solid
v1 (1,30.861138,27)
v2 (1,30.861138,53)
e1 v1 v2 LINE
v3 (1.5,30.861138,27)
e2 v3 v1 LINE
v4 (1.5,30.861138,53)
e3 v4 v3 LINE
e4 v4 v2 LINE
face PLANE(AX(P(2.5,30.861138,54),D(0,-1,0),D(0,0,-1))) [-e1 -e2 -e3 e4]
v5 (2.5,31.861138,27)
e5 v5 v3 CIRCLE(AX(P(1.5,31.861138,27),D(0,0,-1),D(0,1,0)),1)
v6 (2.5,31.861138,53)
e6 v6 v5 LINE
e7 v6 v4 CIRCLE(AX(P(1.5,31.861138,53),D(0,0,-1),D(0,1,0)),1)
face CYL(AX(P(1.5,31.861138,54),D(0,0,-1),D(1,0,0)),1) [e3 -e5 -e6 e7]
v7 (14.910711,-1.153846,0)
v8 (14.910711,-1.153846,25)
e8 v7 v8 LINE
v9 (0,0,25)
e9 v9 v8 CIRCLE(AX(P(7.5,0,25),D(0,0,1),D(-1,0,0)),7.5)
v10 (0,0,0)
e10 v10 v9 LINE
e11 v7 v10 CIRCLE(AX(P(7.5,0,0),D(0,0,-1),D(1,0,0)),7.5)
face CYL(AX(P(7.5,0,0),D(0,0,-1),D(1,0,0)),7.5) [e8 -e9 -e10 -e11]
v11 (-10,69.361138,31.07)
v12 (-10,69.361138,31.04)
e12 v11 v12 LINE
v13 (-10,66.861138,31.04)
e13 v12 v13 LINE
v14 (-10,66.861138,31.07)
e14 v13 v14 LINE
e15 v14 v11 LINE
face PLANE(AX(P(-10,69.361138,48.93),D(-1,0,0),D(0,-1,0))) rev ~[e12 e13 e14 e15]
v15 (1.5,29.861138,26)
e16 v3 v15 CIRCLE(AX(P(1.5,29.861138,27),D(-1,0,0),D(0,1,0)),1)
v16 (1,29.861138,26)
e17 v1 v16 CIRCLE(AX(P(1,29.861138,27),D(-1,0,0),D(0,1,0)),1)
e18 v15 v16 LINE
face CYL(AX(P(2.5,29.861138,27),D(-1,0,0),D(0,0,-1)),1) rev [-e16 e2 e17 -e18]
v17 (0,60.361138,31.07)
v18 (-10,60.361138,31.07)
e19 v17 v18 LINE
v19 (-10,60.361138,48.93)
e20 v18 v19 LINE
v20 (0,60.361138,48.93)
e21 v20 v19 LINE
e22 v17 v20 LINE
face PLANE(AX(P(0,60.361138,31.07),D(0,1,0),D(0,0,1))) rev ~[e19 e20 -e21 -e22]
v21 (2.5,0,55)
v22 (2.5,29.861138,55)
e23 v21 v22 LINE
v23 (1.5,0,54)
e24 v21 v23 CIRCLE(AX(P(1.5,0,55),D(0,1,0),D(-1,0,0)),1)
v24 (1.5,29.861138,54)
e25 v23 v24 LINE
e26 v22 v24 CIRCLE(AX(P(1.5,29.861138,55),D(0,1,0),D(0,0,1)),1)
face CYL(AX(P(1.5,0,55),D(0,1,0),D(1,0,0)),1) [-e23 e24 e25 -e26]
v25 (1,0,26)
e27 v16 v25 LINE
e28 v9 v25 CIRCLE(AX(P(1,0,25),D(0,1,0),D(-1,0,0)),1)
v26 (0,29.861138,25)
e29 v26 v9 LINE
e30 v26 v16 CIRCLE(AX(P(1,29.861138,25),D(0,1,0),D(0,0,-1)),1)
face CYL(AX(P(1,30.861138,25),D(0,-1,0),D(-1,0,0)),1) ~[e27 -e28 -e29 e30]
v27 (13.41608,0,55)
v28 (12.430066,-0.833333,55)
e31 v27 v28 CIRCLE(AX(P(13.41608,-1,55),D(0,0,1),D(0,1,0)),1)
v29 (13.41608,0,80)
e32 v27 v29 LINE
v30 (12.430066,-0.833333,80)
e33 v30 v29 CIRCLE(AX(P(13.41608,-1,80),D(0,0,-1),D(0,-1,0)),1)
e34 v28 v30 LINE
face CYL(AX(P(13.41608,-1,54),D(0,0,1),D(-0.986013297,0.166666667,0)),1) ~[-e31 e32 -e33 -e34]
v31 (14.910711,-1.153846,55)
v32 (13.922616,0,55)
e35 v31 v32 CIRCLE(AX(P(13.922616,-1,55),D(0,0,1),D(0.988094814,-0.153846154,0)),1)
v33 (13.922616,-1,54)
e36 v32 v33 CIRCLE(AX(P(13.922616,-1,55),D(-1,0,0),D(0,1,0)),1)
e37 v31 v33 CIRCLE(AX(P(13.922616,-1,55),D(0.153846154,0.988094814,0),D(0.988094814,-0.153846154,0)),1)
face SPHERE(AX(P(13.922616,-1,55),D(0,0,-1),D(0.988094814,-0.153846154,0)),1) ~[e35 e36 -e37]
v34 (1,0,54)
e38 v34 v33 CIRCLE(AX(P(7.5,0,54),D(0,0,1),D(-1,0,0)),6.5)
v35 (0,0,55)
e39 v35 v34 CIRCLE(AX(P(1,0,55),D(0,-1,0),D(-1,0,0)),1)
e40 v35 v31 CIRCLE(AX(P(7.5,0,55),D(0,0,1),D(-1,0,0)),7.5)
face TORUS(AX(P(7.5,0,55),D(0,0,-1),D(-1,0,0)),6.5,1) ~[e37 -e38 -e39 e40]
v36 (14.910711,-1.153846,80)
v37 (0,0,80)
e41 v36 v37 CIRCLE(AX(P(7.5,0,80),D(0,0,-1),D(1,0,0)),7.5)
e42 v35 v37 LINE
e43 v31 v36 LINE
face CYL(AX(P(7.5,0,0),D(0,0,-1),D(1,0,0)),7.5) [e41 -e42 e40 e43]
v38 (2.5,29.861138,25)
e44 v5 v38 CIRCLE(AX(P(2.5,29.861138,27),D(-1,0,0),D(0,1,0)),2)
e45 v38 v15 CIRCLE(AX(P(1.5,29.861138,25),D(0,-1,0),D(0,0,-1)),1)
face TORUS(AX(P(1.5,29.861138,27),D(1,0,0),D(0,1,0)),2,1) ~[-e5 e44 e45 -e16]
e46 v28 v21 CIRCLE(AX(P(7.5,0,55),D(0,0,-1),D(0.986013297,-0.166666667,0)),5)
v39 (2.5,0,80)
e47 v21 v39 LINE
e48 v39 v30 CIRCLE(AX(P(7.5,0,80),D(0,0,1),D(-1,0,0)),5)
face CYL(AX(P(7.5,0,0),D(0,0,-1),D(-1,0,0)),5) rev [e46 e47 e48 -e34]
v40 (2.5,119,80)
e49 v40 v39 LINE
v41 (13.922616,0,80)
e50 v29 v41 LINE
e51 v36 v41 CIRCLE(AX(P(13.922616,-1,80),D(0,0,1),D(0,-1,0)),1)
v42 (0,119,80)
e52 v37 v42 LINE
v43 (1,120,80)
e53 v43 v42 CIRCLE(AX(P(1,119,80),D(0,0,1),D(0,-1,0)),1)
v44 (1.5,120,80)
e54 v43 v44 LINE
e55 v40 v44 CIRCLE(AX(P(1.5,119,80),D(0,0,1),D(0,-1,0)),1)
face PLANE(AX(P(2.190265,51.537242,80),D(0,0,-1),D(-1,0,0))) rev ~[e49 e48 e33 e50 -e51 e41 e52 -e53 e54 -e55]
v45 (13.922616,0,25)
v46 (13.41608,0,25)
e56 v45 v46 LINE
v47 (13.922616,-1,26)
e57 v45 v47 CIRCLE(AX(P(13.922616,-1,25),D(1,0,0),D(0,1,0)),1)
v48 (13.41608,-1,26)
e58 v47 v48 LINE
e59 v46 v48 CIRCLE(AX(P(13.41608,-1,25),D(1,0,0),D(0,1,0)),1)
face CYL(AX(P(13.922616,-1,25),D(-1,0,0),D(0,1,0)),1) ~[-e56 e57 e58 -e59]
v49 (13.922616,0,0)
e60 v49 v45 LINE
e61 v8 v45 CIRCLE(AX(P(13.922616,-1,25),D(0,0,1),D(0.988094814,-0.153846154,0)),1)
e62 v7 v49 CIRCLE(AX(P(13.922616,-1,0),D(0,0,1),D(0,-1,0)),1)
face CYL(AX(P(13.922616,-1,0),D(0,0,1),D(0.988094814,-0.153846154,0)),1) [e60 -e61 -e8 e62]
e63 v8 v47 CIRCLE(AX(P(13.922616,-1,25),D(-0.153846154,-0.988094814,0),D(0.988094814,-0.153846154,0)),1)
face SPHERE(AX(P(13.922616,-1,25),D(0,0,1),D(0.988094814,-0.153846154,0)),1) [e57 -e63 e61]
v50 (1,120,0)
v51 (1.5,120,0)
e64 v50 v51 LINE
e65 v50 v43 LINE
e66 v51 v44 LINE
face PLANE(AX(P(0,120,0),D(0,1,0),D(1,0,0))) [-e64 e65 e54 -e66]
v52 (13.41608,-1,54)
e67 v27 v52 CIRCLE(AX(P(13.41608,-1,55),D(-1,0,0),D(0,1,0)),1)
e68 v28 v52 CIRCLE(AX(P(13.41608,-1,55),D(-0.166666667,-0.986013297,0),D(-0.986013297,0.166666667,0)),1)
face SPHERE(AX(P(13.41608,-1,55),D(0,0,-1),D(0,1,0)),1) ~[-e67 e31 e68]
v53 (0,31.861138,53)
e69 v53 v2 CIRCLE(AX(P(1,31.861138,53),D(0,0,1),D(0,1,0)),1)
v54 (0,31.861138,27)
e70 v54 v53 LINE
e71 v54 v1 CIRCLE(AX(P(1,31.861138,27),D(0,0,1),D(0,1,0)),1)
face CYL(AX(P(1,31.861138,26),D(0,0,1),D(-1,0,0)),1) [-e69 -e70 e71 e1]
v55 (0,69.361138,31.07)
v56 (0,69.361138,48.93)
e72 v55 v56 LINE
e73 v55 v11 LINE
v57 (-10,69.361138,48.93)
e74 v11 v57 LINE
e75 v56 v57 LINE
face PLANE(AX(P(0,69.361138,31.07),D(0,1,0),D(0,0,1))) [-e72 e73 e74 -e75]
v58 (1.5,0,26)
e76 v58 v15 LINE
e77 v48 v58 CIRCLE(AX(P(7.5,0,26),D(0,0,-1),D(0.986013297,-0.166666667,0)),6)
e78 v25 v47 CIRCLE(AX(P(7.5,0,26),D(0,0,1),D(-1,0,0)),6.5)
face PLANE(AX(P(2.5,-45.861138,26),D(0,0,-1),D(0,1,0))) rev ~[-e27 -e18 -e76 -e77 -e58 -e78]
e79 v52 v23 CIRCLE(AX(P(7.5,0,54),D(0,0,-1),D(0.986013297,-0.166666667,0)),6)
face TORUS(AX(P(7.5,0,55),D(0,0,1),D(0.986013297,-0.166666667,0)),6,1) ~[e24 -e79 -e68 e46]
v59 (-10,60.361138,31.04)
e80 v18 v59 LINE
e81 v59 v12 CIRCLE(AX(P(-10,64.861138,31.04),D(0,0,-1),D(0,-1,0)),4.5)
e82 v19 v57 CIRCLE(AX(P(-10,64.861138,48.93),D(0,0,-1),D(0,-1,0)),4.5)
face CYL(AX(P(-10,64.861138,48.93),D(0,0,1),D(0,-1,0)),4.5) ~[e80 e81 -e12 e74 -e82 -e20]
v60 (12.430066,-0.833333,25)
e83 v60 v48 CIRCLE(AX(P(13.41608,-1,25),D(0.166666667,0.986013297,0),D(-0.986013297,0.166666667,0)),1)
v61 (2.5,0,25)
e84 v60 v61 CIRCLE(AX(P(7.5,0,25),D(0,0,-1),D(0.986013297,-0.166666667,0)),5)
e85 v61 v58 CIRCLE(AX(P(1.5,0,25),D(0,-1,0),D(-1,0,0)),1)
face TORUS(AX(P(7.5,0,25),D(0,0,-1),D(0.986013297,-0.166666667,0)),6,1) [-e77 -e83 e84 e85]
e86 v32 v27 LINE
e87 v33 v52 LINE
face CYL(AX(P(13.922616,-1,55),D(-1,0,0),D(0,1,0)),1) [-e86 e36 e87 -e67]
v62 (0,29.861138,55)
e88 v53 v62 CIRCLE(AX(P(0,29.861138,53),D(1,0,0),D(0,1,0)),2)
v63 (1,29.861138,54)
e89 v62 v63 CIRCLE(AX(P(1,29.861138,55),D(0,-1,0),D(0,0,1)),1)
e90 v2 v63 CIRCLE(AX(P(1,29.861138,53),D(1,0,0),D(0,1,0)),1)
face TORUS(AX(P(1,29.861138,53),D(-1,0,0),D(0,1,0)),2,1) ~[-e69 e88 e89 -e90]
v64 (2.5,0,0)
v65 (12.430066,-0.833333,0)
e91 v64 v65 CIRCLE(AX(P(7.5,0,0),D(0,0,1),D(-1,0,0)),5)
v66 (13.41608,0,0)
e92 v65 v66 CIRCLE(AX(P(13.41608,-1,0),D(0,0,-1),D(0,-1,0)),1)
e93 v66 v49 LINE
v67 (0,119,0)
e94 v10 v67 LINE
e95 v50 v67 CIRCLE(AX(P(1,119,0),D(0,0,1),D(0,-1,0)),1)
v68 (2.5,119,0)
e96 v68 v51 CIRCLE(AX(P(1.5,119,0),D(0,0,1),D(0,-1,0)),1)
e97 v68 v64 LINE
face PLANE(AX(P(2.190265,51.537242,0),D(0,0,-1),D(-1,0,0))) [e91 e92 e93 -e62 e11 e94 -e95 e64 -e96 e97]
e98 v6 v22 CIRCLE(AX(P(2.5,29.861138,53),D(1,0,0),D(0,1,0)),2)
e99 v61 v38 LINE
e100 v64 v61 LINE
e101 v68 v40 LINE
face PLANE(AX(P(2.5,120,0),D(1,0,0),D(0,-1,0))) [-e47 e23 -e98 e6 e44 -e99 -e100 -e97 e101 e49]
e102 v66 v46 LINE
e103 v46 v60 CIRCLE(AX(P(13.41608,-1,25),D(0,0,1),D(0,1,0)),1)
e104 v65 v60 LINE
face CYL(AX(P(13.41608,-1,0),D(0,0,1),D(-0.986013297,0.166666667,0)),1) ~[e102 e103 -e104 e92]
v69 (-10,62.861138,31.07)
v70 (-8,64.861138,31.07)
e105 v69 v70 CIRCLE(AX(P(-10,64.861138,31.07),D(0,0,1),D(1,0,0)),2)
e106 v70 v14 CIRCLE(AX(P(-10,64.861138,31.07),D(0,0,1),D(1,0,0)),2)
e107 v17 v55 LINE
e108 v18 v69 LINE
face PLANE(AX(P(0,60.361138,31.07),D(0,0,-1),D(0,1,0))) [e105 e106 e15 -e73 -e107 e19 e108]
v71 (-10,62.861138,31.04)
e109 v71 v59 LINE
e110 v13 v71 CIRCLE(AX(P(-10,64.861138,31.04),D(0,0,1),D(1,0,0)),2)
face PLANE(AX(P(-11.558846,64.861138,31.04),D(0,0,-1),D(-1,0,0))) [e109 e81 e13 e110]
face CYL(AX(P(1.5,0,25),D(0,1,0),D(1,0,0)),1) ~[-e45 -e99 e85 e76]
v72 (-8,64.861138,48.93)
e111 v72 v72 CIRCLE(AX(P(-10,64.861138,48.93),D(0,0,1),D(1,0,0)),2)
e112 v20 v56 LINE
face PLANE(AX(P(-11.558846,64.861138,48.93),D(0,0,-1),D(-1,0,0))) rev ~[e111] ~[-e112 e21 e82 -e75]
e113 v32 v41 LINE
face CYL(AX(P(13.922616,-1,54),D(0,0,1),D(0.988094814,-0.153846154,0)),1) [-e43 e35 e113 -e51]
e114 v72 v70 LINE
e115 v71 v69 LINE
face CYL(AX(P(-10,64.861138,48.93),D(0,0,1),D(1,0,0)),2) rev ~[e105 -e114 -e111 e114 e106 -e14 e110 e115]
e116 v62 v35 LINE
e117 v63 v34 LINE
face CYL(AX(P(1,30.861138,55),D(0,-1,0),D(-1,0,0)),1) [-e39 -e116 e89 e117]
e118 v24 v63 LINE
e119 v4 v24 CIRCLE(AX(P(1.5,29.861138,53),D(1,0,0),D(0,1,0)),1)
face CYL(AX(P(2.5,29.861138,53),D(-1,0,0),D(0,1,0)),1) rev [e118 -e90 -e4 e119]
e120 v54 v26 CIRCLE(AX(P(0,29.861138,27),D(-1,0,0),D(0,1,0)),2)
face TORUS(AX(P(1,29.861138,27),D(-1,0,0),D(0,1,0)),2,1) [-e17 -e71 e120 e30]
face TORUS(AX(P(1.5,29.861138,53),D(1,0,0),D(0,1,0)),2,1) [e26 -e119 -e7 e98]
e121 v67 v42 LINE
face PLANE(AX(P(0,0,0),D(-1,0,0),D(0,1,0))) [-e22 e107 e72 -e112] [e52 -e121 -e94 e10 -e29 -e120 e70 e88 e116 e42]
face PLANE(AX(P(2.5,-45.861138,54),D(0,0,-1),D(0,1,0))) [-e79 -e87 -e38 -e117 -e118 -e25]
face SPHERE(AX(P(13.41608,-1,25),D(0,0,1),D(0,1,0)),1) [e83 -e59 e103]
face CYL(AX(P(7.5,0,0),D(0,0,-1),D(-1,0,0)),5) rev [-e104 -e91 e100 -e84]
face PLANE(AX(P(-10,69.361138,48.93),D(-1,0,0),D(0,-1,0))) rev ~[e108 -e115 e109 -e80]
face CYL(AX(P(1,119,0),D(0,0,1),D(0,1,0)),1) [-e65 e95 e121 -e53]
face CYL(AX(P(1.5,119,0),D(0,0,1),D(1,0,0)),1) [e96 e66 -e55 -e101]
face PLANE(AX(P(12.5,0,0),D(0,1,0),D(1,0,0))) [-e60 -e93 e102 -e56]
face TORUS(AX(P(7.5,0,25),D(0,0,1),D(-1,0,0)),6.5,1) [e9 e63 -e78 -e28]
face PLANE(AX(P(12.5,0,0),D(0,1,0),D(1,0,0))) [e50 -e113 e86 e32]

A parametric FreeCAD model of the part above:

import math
import FreeCAD as App
import Part
import Sketcher

V = App.Vector


def edges_at(feature, points):
    """Names of the edges that pass closest to the given points."""
    edges = feature.Shape.Edges
    near = lambda p: min(range(len(edges)), key=lambda i: edges[i].distToShape(Part.Vertex(*p))[0])
    return sorted({f"Edge{near(p) + 1}" for p in points})

doc = App.newDocument("Part")
body = doc.addObject("PartDesign::Body", "Body")

sketch1 = body.newObject("Sketcher::SketchObject", "Sketch")
sketch1.AttachmentSupport = (doc.getObject("XY_Plane"), [""])
sketch1.MapMode = "FlatFace"
sketch1.addGeometry([
    Part.LineSegment(V(0, 120, 0), V(0, 0, 0)),
    Part.ArcOfCircle(Part.Circle(V(7.5, 0, 0), V(0, 0, 1), 7.5), math.radians(180), math.radians(360)),
    Part.LineSegment(V(15, 0, 0), V(12.5, 0, 0)),
    Part.ArcOfCircle(Part.Circle(V(7.5, 0, 0), V(0, 0, 1), 5), math.radians(180), math.radians(360)),
    Part.LineSegment(V(2.5, 0, 0), V(2.5, 120, 0)),
    Part.LineSegment(V(2.5, 120, 0), V(0, 120, 0)),
], False)
sketch1.addConstraint([
    Sketcher.Constraint("Tangent", 0, 2, 1, 1),
    Sketcher.Constraint("Coincident", 1, 2, 2, 1),
    Sketcher.Constraint("Coincident", 2, 2, 3, 2),
    Sketcher.Constraint("Tangent", 3, 1, 4, 1),
    Sketcher.Constraint("Coincident", 4, 2, 5, 1),
    Sketcher.Constraint("Coincident", 5, 2, 0, 1),
    Sketcher.Constraint("Vertical", 0),
    Sketcher.Constraint("Horizontal", 2),
    Sketcher.Constraint("Vertical", 4),
    Sketcher.Constraint("Horizontal", 5),
    Sketcher.Constraint("Coincident", 0, 2, -1, 1),
    Sketcher.Constraint("Coincident", 3, 3, 1, 3),
    Sketcher.Constraint("PointOnObject", 1, 2, -1),
    Sketcher.Constraint("Radius", 3, 5.0),
    Sketcher.Constraint("Radius", 1, 7.5),
    Sketcher.Constraint("DistanceY", 0, 2, 0, 1, 120.0),
])
pad1 = body.newObject("PartDesign::Pad", "Pad")
pad1.Profile = sketch1
pad1.Length = 80

sketch2 = body.newObject("Sketcher::SketchObject", "Sketch001")
sketch2.AttachmentSupport = (doc.getObject("YZ_Plane"), [""])
sketch2.MapMode = "FlatFace"
sketch2.AttachmentOffset = App.Placement(V(0, 0, 2.5), App.Rotation())
sketch2.addGeometry([
    Part.LineSegment(V(31, 54, 0), V(-46, 54, 0)),
    Part.LineSegment(V(-46, 54, 0), V(-46, 26, 0)),
    Part.LineSegment(V(-46, 26, 0), V(31, 26, 0)),
    Part.LineSegment(V(31, 26, 0), V(31, 54, 0)),
], False)
sketch2.addConstraint([
    Sketcher.Constraint("Coincident", 0, 2, 1, 1),
    Sketcher.Constraint("Coincident", 1, 2, 2, 1),
    Sketcher.Constraint("Coincident", 2, 2, 3, 1),
    Sketcher.Constraint("Coincident", 3, 2, 0, 1),
    Sketcher.Constraint("Horizontal", 0),
    Sketcher.Constraint("Vertical", 1),
    Sketcher.Constraint("Horizontal", 2),
    Sketcher.Constraint("Vertical", 3),
    Sketcher.Constraint("DistanceY", 1, 2, 1, 1, 28.0),
    Sketcher.Constraint("DistanceY", -1, 1, 0, 2, 54.0),
    Sketcher.Constraint("DistanceX", 0, 2, 0, 1, 76.722276),
    Sketcher.Constraint("DistanceX", 0, 2, -1, 1, 45.861138),
])
pocket1 = body.newObject("PartDesign::Pocket", "Pocket")
pocket1.Profile = sketch2
pocket1.Length = 80
pocket1.Midplane = True
doc.recompute()

fillet = body.newObject("PartDesign::Fillet", "Fillet")
fillet.Base = (pocket1, edges_at(pocket1, [
    (12.5, 0, 67),
    (15, 0, 67),
    (12.5, 0, 13),
    (15, 0, 13),
]))
fillet.Radius = 1
doc.recompute()

fillet2 = body.newObject("PartDesign::Fillet", "Fillet001")
fillet2.Base = (fillet, edges_at(fillet, [(0, 120, 40), (2.5, 120, 40)]))
fillet2.Radius = 1
doc.recompute()

fillet3 = body.newObject("PartDesign::Fillet", "Fillet002")
fillet3.Base = (fillet2, edges_at(fillet2, [
    (0, 30.861, 40),
    (0, 15.431, 54),
    (0, 15.431, 26),
    (1.25, 30.861, 26),
    (2.5, 15.431, 26),
    (7.082, -4.982, 26),
    (2.5, 15.431, 54),
    (6.921, -7.478, 54),
    (1.25, 30.861, 54),
    (2.5, 30.861, 40),
    (13.669, 0, 26),
    (6.921, -7.478, 26),
    (14.682, -0.35, 26),
    (12.771, -0.236, 26),
    (7.082, -4.982, 54),
    (13.669, 0, 54),
    (14.682, -0.35, 54),
    (12.771, -0.236, 54),
]))
fillet3.Radius = 1

sketch3 = body.newObject("Sketcher::SketchObject", "Sketch002")
sketch3.AttachmentSupport = (doc.getObject("YZ_Plane"), [""])
sketch3.MapMode = "FlatFace"
sketch3.addGeometry([
    Part.LineSegment(V(69, 31, 0), V(60, 31, 0)),
    Part.LineSegment(V(60, 31, 0), V(60, 49, 0)),
    Part.LineSegment(V(60, 49, 0), V(69, 49, 0)),
    Part.LineSegment(V(69, 49, 0), V(69, 31, 0)),
], False)
sketch3.addConstraint([
    Sketcher.Constraint("Coincident", 0, 2, 1, 1),
    Sketcher.Constraint("Coincident", 1, 2, 2, 1),
    Sketcher.Constraint("Coincident", 2, 2, 3, 1),
    Sketcher.Constraint("Coincident", 3, 2, 0, 1),
    Sketcher.Constraint("Horizontal", 0),
    Sketcher.Constraint("Vertical", 1),
    Sketcher.Constraint("Horizontal", 2),
    Sketcher.Constraint("Vertical", 3),
    Sketcher.Constraint("DistanceX", 0, 2, 0, 1, 9.0),
    Sketcher.Constraint("DistanceY", 1, 1, 1, 2, 17.86),
    Sketcher.Constraint("DistanceY", -1, 1, 0, 2, 31.07),
    Sketcher.Constraint("DistanceX", -1, 1, 0, 2, 60.361138),
])
pad2 = body.newObject("PartDesign::Pad", "Pad001")
pad2.Profile = sketch3
pad2.Length = 10
pad2.Reversed = True

sketch4 = body.newObject("Sketcher::SketchObject", "Sketch003")
sketch4.AttachmentSupport = (doc.getObject("XY_Plane"), [""])
sketch4.MapMode = "FlatFace"
sketch4.AttachmentOffset = App.Placement(V(0, 0, 48.93), App.Rotation())
sketch4.addGeometry([
    Part.LineSegment(V(-10, 60.4, 0), V(-10, 69.4, 0)),
    Part.ArcOfCircle(Part.Circle(V(-10, 64.9, 0), V(0, 0, 1), 4.5), math.radians(90), math.radians(270)),
], False)
sketch4.addConstraint([
    Sketcher.Constraint("Coincident", 0, 1, 1, 2),
    Sketcher.Constraint("Coincident", 1, 1, 0, 2),
    Sketcher.Constraint("Vertical", 0),
    Sketcher.Constraint("Vertical", 1, 3, 0, 1),
    Sketcher.Constraint("Radius", 1, 4.5),
    Sketcher.Constraint("DistanceX", 1, 3, -1, 1, 10.0),
    Sketcher.Constraint("DistanceY", -1, 1, 1, 3, 64.861138),
])
pad3 = body.newObject("PartDesign::Pad", "Pad002")
pad3.Profile = sketch4
pad3.Length = 17.89
pad3.Reversed = True

sketch5 = body.newObject("Sketcher::SketchObject", "Sketch004")
sketch5.AttachmentSupport = (doc.getObject("XY_Plane"), [""])
sketch5.MapMode = "FlatFace"
sketch5.AttachmentOffset = App.Placement(V(0, 0, 48.93), App.Rotation())
sketch5.addGeometry(Part.Circle(V(-10, 64.9, 0), V(0, 0, 1), 2), False)
sketch5.addConstraint([
    Sketcher.Constraint("Diameter", 0, 4.0),
    Sketcher.Constraint("DistanceX", 0, 3, -1, 1, 10.0),
    Sketcher.Constraint("DistanceY", -1, 1, 0, 3, 64.861138),
])
pocket2 = body.newObject("PartDesign::Pocket", "Pocket001")
pocket2.Profile = sketch5
pocket2.Type = "ThroughAll"

doc.recompute()
